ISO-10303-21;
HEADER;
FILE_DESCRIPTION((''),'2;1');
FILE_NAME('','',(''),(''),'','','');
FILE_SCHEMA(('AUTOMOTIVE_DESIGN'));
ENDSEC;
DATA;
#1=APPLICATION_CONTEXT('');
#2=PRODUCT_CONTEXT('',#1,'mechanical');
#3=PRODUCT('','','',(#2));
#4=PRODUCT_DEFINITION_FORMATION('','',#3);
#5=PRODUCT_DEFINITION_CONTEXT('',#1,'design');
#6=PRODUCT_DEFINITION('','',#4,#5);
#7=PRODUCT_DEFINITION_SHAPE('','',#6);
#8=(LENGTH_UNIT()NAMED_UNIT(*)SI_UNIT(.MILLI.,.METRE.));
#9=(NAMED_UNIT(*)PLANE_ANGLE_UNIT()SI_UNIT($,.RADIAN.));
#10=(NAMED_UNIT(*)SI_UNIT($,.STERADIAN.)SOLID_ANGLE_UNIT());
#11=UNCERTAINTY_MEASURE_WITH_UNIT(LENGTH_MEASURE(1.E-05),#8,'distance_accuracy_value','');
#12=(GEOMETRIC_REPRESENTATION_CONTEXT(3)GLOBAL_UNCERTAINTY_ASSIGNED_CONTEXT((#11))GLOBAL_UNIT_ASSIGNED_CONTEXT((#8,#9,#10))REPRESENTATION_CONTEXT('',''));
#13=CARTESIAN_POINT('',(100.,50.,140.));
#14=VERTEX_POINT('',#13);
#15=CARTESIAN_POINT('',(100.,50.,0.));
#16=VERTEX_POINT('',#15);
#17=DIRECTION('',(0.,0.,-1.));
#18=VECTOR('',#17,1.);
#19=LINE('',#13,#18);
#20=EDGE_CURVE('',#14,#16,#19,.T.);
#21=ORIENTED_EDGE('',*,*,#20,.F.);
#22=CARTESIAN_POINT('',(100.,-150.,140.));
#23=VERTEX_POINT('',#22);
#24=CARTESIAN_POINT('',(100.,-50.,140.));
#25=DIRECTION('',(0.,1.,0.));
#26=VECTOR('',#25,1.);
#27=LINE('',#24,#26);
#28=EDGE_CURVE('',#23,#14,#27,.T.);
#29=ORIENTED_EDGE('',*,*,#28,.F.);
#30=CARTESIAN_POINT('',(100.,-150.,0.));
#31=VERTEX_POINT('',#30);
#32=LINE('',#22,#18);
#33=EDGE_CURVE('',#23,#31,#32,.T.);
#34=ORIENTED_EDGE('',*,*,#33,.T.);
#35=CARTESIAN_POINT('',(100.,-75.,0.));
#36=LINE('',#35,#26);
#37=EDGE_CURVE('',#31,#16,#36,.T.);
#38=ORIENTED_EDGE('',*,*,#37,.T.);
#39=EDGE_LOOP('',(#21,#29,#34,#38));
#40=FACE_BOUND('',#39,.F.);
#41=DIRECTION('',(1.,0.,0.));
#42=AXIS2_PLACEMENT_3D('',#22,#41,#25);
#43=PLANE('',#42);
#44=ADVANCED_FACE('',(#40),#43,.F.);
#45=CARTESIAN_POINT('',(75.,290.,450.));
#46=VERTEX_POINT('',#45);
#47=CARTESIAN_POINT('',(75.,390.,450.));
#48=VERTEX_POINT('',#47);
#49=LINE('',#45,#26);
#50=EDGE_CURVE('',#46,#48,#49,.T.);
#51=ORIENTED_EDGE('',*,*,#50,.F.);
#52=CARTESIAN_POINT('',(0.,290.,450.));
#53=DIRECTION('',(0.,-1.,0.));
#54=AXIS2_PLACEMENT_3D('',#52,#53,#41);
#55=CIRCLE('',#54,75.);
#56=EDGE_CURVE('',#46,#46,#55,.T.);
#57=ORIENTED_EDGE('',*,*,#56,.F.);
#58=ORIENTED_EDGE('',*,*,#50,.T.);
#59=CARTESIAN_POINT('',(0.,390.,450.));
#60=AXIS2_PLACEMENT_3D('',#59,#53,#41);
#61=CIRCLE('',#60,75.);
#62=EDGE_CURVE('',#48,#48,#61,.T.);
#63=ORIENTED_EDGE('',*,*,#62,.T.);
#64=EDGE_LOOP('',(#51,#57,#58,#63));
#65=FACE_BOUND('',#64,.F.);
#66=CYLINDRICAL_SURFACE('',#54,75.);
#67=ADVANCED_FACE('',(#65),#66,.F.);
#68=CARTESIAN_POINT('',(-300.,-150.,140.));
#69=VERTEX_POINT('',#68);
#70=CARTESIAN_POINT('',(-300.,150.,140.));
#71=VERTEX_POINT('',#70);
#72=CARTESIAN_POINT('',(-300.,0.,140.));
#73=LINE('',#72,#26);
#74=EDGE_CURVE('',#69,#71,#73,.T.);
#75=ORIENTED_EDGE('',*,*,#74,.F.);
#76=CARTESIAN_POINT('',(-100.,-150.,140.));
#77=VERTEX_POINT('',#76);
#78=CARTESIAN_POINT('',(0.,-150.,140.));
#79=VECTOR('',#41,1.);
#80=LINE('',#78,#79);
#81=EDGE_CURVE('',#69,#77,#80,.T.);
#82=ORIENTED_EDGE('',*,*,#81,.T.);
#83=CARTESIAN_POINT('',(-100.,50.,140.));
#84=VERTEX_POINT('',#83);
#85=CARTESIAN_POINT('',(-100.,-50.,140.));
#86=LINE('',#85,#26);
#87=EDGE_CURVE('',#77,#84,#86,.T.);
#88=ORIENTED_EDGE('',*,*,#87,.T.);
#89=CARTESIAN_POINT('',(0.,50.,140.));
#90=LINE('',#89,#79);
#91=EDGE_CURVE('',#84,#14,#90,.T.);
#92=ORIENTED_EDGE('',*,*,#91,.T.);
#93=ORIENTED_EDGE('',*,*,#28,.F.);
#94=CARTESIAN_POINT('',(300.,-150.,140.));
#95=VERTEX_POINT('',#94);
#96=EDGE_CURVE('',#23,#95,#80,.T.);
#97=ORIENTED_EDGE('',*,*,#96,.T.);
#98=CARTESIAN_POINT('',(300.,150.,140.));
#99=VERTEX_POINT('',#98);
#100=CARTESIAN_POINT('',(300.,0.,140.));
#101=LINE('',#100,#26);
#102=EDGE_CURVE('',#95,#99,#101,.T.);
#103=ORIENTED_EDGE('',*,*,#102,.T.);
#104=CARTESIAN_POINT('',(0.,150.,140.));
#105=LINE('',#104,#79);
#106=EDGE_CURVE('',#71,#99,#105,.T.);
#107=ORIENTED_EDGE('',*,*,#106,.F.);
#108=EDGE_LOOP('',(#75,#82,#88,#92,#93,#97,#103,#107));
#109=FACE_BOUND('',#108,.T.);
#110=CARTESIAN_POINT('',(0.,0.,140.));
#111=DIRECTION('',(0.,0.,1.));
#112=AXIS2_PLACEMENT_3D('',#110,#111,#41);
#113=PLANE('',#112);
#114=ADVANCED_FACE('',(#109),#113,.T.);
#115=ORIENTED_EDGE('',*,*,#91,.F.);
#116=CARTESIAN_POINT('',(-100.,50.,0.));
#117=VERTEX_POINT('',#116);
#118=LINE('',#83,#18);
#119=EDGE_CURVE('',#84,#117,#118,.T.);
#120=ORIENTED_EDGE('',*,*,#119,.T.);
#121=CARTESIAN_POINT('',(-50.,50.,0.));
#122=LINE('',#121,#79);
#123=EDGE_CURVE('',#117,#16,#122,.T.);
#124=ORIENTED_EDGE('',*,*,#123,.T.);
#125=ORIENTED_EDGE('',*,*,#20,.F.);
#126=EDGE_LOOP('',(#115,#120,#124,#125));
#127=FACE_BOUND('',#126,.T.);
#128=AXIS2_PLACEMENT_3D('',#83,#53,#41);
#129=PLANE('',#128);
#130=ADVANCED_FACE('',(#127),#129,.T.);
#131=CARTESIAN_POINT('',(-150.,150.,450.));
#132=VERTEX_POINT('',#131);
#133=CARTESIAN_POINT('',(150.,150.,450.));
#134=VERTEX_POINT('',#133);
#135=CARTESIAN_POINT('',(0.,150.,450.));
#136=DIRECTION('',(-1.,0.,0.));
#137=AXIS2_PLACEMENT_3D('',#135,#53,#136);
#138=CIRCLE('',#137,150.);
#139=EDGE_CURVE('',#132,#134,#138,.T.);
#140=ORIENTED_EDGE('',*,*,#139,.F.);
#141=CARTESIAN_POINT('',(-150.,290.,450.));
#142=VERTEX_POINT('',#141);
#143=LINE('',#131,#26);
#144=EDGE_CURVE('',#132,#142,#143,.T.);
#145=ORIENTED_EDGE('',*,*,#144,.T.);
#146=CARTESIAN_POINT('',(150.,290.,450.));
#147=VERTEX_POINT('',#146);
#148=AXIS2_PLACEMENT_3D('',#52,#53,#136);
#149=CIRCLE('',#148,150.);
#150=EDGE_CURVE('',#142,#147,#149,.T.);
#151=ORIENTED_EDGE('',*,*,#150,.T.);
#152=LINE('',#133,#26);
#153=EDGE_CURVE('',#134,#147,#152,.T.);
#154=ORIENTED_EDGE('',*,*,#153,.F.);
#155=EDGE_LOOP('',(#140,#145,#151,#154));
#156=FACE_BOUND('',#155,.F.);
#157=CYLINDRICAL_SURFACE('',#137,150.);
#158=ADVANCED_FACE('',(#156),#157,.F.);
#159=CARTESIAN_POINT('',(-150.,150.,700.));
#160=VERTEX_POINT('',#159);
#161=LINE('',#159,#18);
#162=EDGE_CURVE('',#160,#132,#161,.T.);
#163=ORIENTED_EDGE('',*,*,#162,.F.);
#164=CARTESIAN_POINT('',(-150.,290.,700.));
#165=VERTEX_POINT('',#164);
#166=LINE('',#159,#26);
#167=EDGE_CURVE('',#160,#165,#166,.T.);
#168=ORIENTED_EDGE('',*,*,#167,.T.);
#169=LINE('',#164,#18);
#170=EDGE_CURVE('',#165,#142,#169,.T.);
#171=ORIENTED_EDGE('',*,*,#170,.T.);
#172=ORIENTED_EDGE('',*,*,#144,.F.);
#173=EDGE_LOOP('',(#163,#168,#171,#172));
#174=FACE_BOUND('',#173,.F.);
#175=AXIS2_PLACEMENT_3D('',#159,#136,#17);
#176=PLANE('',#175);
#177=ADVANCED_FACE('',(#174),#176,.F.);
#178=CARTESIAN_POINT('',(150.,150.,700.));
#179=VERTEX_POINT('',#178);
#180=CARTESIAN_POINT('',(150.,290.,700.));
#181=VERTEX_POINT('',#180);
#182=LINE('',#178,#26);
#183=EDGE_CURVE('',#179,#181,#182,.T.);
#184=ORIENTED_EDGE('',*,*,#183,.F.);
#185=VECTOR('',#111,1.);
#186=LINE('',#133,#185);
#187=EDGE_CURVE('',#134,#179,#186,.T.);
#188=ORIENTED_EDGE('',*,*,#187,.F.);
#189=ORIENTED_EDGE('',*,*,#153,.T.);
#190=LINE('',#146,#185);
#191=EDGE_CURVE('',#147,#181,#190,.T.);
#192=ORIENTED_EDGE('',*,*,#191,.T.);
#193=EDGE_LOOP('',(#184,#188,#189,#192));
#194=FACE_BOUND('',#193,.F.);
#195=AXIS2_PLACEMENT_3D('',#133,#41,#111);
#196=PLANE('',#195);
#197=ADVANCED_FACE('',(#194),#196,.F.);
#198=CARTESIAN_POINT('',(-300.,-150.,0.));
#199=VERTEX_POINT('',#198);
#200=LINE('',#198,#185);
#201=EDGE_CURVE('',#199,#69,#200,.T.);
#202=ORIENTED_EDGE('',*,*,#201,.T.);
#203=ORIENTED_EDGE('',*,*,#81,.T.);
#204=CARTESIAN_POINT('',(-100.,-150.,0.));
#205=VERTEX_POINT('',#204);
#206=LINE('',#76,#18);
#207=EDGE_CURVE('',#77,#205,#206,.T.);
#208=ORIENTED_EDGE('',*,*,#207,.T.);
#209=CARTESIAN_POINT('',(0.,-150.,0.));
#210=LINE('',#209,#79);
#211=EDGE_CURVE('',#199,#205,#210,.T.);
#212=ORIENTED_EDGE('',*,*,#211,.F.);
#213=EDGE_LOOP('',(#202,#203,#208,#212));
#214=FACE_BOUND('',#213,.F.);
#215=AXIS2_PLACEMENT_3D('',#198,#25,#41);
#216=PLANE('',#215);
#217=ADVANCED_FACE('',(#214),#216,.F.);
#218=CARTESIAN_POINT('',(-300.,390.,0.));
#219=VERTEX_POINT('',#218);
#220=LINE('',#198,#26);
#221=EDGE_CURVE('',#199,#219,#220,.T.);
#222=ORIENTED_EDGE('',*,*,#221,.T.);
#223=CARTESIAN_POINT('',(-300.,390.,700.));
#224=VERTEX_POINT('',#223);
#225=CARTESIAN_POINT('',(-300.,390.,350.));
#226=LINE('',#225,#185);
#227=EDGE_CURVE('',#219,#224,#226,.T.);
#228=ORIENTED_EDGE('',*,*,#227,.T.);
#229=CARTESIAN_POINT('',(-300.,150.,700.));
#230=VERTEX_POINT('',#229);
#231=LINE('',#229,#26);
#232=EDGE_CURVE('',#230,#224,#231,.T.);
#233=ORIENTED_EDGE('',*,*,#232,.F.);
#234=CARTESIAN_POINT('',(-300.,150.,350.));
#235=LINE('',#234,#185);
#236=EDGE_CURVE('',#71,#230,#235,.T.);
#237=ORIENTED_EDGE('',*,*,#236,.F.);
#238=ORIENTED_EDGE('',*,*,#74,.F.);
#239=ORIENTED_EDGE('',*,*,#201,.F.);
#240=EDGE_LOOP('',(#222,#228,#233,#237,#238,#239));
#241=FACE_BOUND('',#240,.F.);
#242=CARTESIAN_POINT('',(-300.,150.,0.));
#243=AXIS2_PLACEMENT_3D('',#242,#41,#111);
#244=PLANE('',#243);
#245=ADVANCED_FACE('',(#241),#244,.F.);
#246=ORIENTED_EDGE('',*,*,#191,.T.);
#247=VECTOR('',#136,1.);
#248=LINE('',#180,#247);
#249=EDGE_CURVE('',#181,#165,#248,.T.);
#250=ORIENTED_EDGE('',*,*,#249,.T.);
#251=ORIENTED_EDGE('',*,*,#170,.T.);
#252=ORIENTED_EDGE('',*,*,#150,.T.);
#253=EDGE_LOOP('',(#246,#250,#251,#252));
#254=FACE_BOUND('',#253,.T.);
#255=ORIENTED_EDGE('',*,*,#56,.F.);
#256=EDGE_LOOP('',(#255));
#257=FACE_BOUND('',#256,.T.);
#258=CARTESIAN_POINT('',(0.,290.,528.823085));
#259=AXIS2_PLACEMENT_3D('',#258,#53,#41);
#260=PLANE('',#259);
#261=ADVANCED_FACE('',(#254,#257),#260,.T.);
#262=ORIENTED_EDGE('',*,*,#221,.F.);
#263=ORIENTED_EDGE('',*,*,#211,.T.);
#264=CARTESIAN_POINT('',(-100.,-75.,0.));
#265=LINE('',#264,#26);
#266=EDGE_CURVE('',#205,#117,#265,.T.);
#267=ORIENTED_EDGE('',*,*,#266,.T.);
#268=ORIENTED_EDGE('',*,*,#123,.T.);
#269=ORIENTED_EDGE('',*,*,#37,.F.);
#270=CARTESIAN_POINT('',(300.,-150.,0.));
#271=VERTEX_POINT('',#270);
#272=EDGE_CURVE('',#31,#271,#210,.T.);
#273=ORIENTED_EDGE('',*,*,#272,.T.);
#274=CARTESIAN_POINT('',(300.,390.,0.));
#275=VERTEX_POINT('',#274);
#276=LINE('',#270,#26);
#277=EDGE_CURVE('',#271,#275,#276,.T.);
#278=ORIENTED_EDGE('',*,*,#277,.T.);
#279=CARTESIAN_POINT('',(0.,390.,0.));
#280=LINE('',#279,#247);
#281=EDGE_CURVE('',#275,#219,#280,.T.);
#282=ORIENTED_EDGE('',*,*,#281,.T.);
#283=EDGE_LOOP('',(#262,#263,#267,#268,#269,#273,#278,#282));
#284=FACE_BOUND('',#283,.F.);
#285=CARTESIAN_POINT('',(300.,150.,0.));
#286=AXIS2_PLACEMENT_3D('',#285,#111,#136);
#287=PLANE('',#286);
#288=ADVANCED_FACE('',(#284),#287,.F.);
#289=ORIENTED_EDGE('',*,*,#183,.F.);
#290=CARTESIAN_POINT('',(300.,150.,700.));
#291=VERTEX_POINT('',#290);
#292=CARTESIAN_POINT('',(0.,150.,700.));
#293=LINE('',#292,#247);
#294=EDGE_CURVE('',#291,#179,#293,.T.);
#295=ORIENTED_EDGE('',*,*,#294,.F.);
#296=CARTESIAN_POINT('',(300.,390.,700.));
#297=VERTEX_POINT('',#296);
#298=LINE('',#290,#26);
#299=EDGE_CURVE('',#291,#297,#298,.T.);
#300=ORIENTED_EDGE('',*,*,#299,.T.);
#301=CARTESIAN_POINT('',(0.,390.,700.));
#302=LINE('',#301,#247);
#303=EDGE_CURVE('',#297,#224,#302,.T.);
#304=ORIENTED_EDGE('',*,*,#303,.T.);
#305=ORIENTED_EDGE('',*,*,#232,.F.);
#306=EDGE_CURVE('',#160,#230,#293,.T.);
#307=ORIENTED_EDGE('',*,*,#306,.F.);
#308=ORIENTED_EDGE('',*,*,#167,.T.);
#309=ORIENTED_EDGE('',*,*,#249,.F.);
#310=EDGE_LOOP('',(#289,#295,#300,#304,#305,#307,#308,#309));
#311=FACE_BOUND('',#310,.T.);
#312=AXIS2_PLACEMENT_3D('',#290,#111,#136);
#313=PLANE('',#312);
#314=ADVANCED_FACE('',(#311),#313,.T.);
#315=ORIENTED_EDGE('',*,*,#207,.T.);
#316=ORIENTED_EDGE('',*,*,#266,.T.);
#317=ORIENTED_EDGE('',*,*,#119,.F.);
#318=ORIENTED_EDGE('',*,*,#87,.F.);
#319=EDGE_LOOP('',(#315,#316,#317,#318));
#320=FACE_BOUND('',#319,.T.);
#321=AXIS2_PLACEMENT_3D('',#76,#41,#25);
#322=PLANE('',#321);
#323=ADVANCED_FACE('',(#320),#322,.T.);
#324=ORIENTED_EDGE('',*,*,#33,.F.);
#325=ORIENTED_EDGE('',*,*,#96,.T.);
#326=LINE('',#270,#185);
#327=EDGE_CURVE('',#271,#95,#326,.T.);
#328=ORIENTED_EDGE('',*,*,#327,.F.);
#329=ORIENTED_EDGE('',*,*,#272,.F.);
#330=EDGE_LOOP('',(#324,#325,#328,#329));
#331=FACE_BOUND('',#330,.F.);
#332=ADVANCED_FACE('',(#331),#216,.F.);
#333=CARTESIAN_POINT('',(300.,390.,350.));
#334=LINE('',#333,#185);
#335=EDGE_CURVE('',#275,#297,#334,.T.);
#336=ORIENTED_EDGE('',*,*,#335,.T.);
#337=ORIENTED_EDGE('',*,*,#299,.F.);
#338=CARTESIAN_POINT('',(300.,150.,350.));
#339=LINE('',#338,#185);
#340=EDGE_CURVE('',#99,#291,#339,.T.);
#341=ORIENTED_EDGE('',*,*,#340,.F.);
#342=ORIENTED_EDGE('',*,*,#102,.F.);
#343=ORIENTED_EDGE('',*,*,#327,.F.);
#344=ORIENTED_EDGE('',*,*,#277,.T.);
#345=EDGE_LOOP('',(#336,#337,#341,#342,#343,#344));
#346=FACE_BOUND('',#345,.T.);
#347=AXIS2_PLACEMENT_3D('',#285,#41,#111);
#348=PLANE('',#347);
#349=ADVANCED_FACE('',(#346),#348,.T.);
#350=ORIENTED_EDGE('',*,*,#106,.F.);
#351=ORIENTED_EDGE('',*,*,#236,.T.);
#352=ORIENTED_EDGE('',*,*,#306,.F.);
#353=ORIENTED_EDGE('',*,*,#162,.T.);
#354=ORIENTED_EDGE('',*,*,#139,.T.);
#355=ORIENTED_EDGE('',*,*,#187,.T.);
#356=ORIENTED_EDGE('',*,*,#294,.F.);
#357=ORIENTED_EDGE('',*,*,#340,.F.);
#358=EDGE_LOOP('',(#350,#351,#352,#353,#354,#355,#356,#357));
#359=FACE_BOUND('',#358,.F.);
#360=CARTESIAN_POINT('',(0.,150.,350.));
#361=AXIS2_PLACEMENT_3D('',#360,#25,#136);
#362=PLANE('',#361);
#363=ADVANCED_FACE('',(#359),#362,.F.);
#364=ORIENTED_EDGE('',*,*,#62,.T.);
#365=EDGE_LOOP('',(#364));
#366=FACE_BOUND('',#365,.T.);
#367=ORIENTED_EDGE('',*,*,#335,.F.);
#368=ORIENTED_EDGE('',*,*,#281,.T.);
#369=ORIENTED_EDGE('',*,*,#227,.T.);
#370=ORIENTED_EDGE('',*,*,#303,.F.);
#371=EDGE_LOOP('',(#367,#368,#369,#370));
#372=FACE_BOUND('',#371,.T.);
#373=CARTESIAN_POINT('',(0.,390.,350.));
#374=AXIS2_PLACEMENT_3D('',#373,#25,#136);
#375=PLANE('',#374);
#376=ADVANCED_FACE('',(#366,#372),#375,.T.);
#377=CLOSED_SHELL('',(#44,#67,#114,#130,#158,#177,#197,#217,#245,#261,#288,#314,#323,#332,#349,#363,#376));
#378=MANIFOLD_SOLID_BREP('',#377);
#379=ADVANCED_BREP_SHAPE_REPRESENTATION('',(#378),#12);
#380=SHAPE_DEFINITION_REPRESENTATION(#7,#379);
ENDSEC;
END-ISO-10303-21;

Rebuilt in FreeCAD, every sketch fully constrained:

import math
import FreeCAD as App
import Part
import Sketcher

V = App.Vector
Q = App.Units.Quantity

doc = App.newDocument("Part")
body = doc.addObject("PartDesign::Body", "Body")

# Sketch on XY plane
sketch1 = body.newObject("Sketcher::SketchObject", "Sketch")
sketch1.AttachmentSupport = (doc.getObject("XY_Plane"), [""])
sketch1.MapMode = "FlatFace"
sketch1.addGeometry(Part.LineSegment(V(-300, 150, 0), V(-300, -150, 0)), False)
sketch1.addGeometry(Part.LineSegment(V(-300, -150, 0), V(300, -150, 0)), False)
sketch1.addGeometry(Part.LineSegment(V(300, -150, 0), V(300, 150, 0)), False)
sketch1.addGeometry(Part.LineSegment(V(300, 150, 0), V(-300, 150, 0)), False)
sketch1.addConstraint(Sketcher.Constraint("Coincident", 0, 2, 1, 1))
sketch1.addConstraint(Sketcher.Constraint("Coincident", 1, 2, 2, 1))
sketch1.addConstraint(Sketcher.Constraint("Coincident", 2, 2, 3, 1))
sketch1.addConstraint(Sketcher.Constraint("Coincident", 3, 2, 0, 1))
sketch1.addConstraint(Sketcher.Constraint("Vertical", 0))
sketch1.addConstraint(Sketcher.Constraint("Horizontal", 1))
sketch1.addConstraint(Sketcher.Constraint("Vertical", 2))
sketch1.addConstraint(Sketcher.Constraint("Horizontal", 3))
sketch1.addConstraint(Sketcher.Constraint("Symmetric", 0, 2, 2, 2, -1, 1))
sketch1.addConstraint(Sketcher.Constraint("DistanceX", 1, 1, 1, 2, Q("600 mm")))
sketch1.addConstraint(Sketcher.Constraint("DistanceY", 0, 2, 0, 1, Q("300 mm")))
pad1 = body.newObject("PartDesign::Pad", "Pad")
pad1.Profile = sketch1
pad1.Length = 140

# Sketch on XY plane
sketch2 = body.newObject("Sketcher::SketchObject", "Sketch001")
sketch2.AttachmentSupport = (doc.getObject("XY_Plane"), [""])
sketch2.MapMode = "FlatFace"
sketch2.AttachmentOffset = App.Placement(V(0, 0, 140), App.Rotation())
sketch2.addGeometry(Part.LineSegment(V(-100, 50, 0), V(-100, -150, 0)), False)
sketch2.addGeometry(Part.LineSegment(V(-100, -150, 0), V(100, -150, 0)), False)
sketch2.addGeometry(Part.LineSegment(V(100, -150, 0), V(100, 50, 0)), False)
sketch2.addGeometry(Part.LineSegment(V(100, 50, 0), V(-100, 50, 0)), False)
sketch2.addConstraint(Sketcher.Constraint("Coincident", 0, 2, 1, 1))
sketch2.addConstraint(Sketcher.Constraint("Coincident", 1, 2, 2, 1))
sketch2.addConstraint(Sketcher.Constraint("Coincident", 2, 2, 3, 1))
sketch2.addConstraint(Sketcher.Constraint("Coincident", 3, 2, 0, 1))
sketch2.addConstraint(Sketcher.Constraint("Vertical", 0))
sketch2.addConstraint(Sketcher.Constraint("Horizontal", 1))
sketch2.addConstraint(Sketcher.Constraint("Vertical", 2))
sketch2.addConstraint(Sketcher.Constraint("Horizontal", 3))
sketch2.addConstraint(Sketcher.Constraint("Equal", 3, 0))
sketch2.addConstraint(Sketcher.Constraint("DistanceX", 1, 1, 1, 2, Q("200 mm")))
sketch2.addConstraint(Sketcher.Constraint("DistanceX", 0, 2, -1, 1, Q("100 mm")))
sketch2.addConstraint(Sketcher.Constraint("DistanceY", 0, 2, -1, 1, Q("150 mm")))
pocket1 = body.newObject("PartDesign::Pocket", "Pocket")
pocket1.Profile = sketch2
pocket1.Type = "ThroughAll"

# Sketch on XZ plane
sketch3 = body.newObject("Sketcher::SketchObject", "Sketch002")
sketch3.AttachmentSupport = (doc.getObject("XZ_Plane"), [""])
sketch3.MapMode = "FlatFace"
sketch3.AttachmentOffset = App.Placement(V(0, 0, -150), App.Rotation())
sketch3.addGeometry(Part.LineSegment(V(300, 700, 0), V(300, 0, 0)), False)
sketch3.addGeometry(Part.LineSegment(V(300, 0, 0), V(-300, 0, 0)), False)
sketch3.addGeometry(Part.LineSegment(V(-300, 0, 0), V(-300, 700, 0)), False)
sketch3.addGeometry(Part.LineSegment(V(-300, 700, 0), V(300, 700, 0)), False)
sketch3.addConstraint(Sketcher.Constraint("Coincident", 0, 2, 1, 1))
sketch3.addConstraint(Sketcher.Constraint("Coincident", 1, 2, 2, 1))
sketch3.addConstraint(Sketcher.Constraint("Coincident", 2, 2, 3, 1))
sketch3.addConstraint(Sketcher.Constraint("Coincident", 3, 2, 0, 1))
sketch3.addConstraint(Sketcher.Constraint("Vertical", 0))
sketch3.addConstraint(Sketcher.Constraint("Horizontal", 1))
sketch3.addConstraint(Sketcher.Constraint("Vertical", 2))
sketch3.addConstraint(Sketcher.Constraint("Horizontal", 3))
sketch3.addConstraint(Sketcher.Constraint("Symmetric", 0, 2, 1, 2, -1, 1))
sketch3.addConstraint(Sketcher.Constraint("DistanceX", 1, 2, 1, 1, Q("600 mm")))
sketch3.addConstraint(Sketcher.Constraint("DistanceY", 0, 2, 0, 1, Q("700 mm")))
pad2 = body.newObject("PartDesign::Pad", "Pad001")
pad2.Profile = sketch3
pad2.Length = 240
pad2.Reversed = True

# Sketch on XZ plane
sketch4 = body.newObject("Sketcher::SketchObject", "Sketch003")
sketch4.AttachmentSupport = (doc.getObject("XZ_Plane"), [""])
sketch4.MapMode = "FlatFace"
sketch4.AttachmentOffset = App.Placement(V(0, 0, -150), App.Rotation())
sketch4.addGeometry(Part.LineSegment(V(150, 450, 0), V(150, 700, 0)), False)
sketch4.addGeometry(Part.LineSegment(V(150, 700, 0), V(-150, 700, 0)), False)
sketch4.addGeometry(Part.LineSegment(V(-150, 700, 0), V(-150, 450, 0)), False)
sketch4.addGeometry(Part.ArcOfCircle(Part.Circle(V(0, 450, 0), V(0, 0, 1), 150), math.radians(180), math.radians(360)), False)
sketch4.addConstraint(Sketcher.Constraint("Coincident", 0, 2, 1, 1))
sketch4.addConstraint(Sketcher.Constraint("Coincident", 1, 2, 2, 1))
sketch4.addConstraint(Sketcher.Constraint("Tangent", 2, 2, 3, 1))
sketch4.addConstraint(Sketcher.Constraint("Tangent", 3, 2, 0, 1))
sketch4.addConstraint(Sketcher.Constraint("Vertical", 0))
sketch4.addConstraint(Sketcher.Constraint("Horizontal", 1))
sketch4.addConstraint(Sketcher.Constraint("Vertical", 2))
sketch4.addConstraint(Sketcher.Constraint("PointOnObject", 3, 3, -2))
sketch4.addConstraint(Sketcher.Constraint("Radius", 3, Q("150 mm")))
sketch4.addConstraint(Sketcher.Constraint("DistanceY", 0, 1, 0, 2, Q("250 mm")))
sketch4.addConstraint(Sketcher.Constraint("DistanceY", -1, 1, 3, 3, Q("450 mm")))
pocket2 = body.newObject("PartDesign::Pocket", "Pocket001")
pocket2.Profile = sketch4
pocket2.Length = 140

# Sketch on XZ plane
sketch5 = body.newObject("Sketcher::SketchObject", "Sketch004")
sketch5.AttachmentSupport = (doc.getObject("XZ_Plane"), [""])
sketch5.MapMode = "FlatFace"
sketch5.AttachmentOffset = App.Placement(V(0, 0, -290), App.Rotation())
sketch5.addGeometry(Part.Circle(V(0, 450, 0), V(0, 0, 1), 75), False)
sketch5.addConstraint(Sketcher.Constraint("PointOnObject", 0, 3, -2))
sketch5.addConstraint(Sketcher.Constraint("Diameter", 0, Q("150 mm")))
sketch5.addConstraint(Sketcher.Constraint("DistanceY", -1, 1, 0, 3, Q("450 mm")))
pocket3 = body.newObject("PartDesign::Pocket", "Pocket002")
pocket3.Profile = sketch5
pocket3.Type = "ThroughAll"

doc.recompute()
